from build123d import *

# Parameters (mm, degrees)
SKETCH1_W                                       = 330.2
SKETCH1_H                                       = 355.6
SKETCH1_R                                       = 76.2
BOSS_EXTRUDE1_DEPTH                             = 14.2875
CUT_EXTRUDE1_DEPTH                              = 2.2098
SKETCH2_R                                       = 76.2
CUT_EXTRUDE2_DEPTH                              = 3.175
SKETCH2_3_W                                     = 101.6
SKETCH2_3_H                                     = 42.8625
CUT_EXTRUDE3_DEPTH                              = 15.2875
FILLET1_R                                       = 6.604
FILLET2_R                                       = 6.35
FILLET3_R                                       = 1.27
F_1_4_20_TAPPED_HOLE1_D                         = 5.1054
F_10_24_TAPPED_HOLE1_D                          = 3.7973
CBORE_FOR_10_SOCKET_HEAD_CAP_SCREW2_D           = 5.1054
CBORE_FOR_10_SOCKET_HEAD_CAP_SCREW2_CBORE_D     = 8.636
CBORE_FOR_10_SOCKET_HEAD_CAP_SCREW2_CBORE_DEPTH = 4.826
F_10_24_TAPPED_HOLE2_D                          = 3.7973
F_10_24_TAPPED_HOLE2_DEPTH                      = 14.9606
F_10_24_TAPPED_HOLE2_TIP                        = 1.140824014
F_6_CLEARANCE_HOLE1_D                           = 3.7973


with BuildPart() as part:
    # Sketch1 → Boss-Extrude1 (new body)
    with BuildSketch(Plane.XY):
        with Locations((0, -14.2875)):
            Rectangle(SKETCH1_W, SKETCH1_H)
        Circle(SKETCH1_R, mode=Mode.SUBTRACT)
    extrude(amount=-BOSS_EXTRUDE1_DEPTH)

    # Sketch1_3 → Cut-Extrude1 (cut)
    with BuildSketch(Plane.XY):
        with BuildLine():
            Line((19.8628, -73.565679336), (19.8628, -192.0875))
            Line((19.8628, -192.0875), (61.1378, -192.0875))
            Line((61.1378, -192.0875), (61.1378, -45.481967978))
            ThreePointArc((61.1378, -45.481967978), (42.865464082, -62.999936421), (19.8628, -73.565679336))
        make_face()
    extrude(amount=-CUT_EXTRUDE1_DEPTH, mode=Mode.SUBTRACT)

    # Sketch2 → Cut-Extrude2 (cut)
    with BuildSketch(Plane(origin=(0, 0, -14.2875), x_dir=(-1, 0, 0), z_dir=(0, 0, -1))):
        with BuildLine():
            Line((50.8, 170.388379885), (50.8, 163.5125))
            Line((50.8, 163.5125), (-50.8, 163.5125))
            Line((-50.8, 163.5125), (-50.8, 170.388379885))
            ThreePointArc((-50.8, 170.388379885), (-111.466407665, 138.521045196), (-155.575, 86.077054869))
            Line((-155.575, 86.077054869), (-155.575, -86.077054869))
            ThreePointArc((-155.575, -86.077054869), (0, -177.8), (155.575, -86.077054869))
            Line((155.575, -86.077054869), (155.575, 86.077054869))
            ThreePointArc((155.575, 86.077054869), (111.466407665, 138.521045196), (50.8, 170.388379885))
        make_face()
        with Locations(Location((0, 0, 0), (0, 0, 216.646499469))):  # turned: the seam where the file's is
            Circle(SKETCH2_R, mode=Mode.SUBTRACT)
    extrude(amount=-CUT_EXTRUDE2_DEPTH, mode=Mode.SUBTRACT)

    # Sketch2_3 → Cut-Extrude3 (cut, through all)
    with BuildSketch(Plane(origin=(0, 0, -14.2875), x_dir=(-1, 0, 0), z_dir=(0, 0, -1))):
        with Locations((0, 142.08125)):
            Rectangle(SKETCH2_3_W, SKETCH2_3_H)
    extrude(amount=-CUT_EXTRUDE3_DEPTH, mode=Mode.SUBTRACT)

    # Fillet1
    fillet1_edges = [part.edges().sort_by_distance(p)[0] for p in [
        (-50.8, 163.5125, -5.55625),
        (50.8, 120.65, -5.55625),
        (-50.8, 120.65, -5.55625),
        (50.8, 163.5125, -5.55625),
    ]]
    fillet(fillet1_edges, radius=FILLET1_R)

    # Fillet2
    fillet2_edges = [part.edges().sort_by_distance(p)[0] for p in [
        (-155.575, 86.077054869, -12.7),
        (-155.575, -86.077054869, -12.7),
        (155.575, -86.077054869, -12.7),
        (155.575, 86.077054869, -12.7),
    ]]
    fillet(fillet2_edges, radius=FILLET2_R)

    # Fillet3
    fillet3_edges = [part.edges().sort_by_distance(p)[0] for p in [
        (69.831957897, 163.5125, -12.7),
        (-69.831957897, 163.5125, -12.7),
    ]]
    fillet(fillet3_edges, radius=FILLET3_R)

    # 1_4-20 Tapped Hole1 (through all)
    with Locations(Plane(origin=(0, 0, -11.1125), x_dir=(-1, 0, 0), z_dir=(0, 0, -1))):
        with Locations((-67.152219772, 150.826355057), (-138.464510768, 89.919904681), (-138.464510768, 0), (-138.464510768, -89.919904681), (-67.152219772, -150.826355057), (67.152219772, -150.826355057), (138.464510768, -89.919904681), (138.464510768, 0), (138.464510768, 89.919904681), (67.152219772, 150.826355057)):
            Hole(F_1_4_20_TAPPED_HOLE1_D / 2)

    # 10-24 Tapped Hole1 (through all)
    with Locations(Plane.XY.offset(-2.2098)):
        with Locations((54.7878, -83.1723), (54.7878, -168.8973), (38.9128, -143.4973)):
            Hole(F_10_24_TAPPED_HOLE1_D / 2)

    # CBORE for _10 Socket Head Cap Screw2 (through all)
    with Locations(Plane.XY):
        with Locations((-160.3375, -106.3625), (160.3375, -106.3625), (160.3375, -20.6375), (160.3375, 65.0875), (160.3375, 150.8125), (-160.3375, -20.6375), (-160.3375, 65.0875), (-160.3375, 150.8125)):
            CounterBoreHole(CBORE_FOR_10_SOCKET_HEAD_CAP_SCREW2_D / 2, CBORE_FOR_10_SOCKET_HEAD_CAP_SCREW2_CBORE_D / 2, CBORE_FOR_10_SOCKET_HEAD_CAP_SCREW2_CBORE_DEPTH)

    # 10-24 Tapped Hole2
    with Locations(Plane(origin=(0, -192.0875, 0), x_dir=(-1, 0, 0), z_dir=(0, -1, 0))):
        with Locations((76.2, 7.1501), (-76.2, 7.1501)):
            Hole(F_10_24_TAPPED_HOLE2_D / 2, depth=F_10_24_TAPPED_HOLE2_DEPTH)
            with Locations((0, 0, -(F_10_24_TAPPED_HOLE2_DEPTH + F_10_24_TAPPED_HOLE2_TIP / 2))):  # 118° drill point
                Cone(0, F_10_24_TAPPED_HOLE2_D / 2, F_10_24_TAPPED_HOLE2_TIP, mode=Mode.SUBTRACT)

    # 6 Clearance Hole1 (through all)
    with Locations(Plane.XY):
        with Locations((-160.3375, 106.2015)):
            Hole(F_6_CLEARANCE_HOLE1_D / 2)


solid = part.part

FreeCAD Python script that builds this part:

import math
import FreeCAD as App
import Part
import Sketcher

V = App.Vector
Q = App.Units.Quantity


def edges_at(feature, points):
    """Names of the edges that pass closest to the given points."""
    edges = feature.Shape.Edges
    near = lambda p: min(range(len(edges)), key=lambda i: edges[i].distToShape(Part.Vertex(*p))[0])
    return sorted({f"Edge{near(p) + 1}" for p in points})


def add_polygon(sketch, points):
    """Adds a closed chain of lines whose ends are joined by coincident constraints."""
    first, n = sketch.GeometryCount, len(points)
    for a, b in zip(points, points[1:] + points[:1]):
        sketch.addGeometry(Part.LineSegment(App.Vector(*a, 0), App.Vector(*b, 0)), False)
    for i in range(n):
        sketch.addConstraint(Sketcher.Constraint("Coincident", first + i, 2, first + (i + 1) % n, 1))

doc = App.newDocument("Part")
body = doc.addObject("PartDesign::Body", "Body")

sketch1 = body.newObject("Sketcher::SketchObject", "Sketch")
sketch1.AttachmentSupport = (doc.getObject("XY_Plane"), [""])
sketch1.MapMode = "FlatFace"
add_polygon(sketch1, [(-165.1, 163.5125), (-165.1, -192.0875), (165.1, -192.0875), (165.1, 163.5125)])
sketch1.addGeometry(Part.Circle(V(0, 0, 0), V(0, 0, 1), 76.2), False)
sketch1.addConstraint(Sketcher.Constraint("Vertical", 0))
sketch1.addConstraint(Sketcher.Constraint("Horizontal", 1))
sketch1.addConstraint(Sketcher.Constraint("Vertical", 2))
sketch1.addConstraint(Sketcher.Constraint("Horizontal", 3))
sketch1.addConstraint(Sketcher.Constraint("Coincident", 4, 3, -1, 1))
sketch1.addConstraint(Sketcher.Constraint("Diameter", 4, Q("6 in")))
sketch1.addConstraint(Sketcher.Constraint("DistanceX", 1, 1, 1, 2, Q("13 in")))
sketch1.addConstraint(Sketcher.Constraint("DistanceY", 0, 2, 0, 1, Q("14 in")))
sketch1.addConstraint(Sketcher.Constraint("DistanceX", 0, 2, -1, 1, Q("6.5 in")))
sketch1.addConstraint(Sketcher.Constraint("DistanceY", 0, 2, -1, 1, Q("7.5625 in")))
pad1 = body.newObject("PartDesign::Pad", "Pad")
pad1.Profile = sketch1
pad1.Length = Q("0.5625 in")
pad1.Reversed = True

sketch2 = body.newObject("Sketcher::SketchObject", "Sketch001")
sketch2.AttachmentSupport = (doc.getObject("XY_Plane"), [""])
sketch2.MapMode = "FlatFace"
sketch2.addGeometry(Part.LineSegment(V(19.8628, -73.565679, 0), V(19.8628, -192.0875, 0)), False)
sketch2.addGeometry(Part.LineSegment(V(19.8628, -192.0875, 0), V(61.1378, -192.0875, 0)), False)
sketch2.addGeometry(Part.LineSegment(V(61.1378, -192.0875, 0), V(61.1378, -45.481968, 0)), False)
sketch2.addGeometry(Part.ArcOfCircle(Part.Circle(V(0, 0, 0), V(0, 0, 1), 76.2), math.radians(-74.890377), math.radians(-36.646499)), False)
sketch2.addConstraint(Sketcher.Constraint("Coincident", 0, 2, 1, 1))
sketch2.addConstraint(Sketcher.Constraint("Coincident", 1, 2, 2, 1))
sketch2.addConstraint(Sketcher.Constraint("Coincident", 2, 2, 3, 2))
sketch2.addConstraint(Sketcher.Constraint("Coincident", 3, 1, 0, 1))
sketch2.addConstraint(Sketcher.Constraint("Vertical", 0))
sketch2.addConstraint(Sketcher.Constraint("Horizontal", 1))
sketch2.addConstraint(Sketcher.Constraint("Vertical", 2))
sketch2.addConstraint(Sketcher.Constraint("Coincident", 3, 3, -1, 1))
sketch2.addConstraint(Sketcher.Constraint("Radius", 3, Q("3 in")))
sketch2.addConstraint(Sketcher.Constraint("DistanceX", 1, 1, 1, 2, Q("1.625 in")))
sketch2.addConstraint(Sketcher.Constraint("DistanceX", -1, 1, 0, 2, Q("0.782 in")))
sketch2.addConstraint(Sketcher.Constraint("DistanceY", 0, 2, -1, 1, Q("7.5625 in")))
pocket1 = body.newObject("PartDesign::Pocket", "Pocket")
pocket1.Profile = sketch2
pocket1.Length = Q("0.087 in")

sketch3 = body.newObject("Sketcher::SketchObject", "Sketch002")
sketch3.AttachmentSupport = (doc.getObject("XY_Plane"), [""])
sketch3.MapMode = "FlatFace"
sketch3.AttachmentOffset = App.Placement(V(0, 0, -0.5625 * 25.4), App.Rotation())
sketch3.addGeometry(Part.LineSegment(V(-50.8, 170.38838, 0), V(-50.8, 163.5125, 0)), False)
sketch3.addGeometry(Part.LineSegment(V(-50.8, 163.5125, 0), V(50.8, 163.5125, 0)), False)
sketch3.addGeometry(Part.LineSegment(V(50.8, 163.5125, 0), V(50.8, 170.38838, 0)), False)
sketch3.addGeometry(Part.ArcOfCircle(Part.Circle(V(0, 0, 0), V(0, 0, 1), 177.8), math.radians(28.955024), math.radians(73.39845)), False)
sketch3.addGeometry(Part.LineSegment(V(155.575, 86.077055, 0), V(155.575, -86.077055, 0)), False)
sketch3.addGeometry(Part.ArcOfCircle(Part.Circle(V(0, 0, 0), V(0, 0, 1), 177.8), math.radians(-151.044976), math.radians(-28.955024)), False)
sketch3.addGeometry(Part.LineSegment(V(-155.575, -86.077055, 0), V(-155.575, 86.077055, 0)), False)
sketch3.addGeometry(Part.ArcOfCircle(Part.Circle(V(0, 0, 0), V(0, 0, 1), 177.8), math.radians(106.60155), math.radians(151.044976)), False)
sketch3.addGeometry(Part.Circle(V(0, 0, 0), V(0, 0, 1), 76.2), False)
sketch3.addConstraint(Sketcher.Constraint("Coincident", 0, 2, 1, 1))
sketch3.addConstraint(Sketcher.Constraint("Coincident", 1, 2, 2, 1))
sketch3.addConstraint(Sketcher.Constraint("Coincident", 2, 2, 3, 2))
sketch3.addConstraint(Sketcher.Constraint("Coincident", 3, 1, 4, 1))
sketch3.addConstraint(Sketcher.Constraint("Coincident", 4, 2, 5, 2))
sketch3.addConstraint(Sketcher.Constraint("Coincident", 5, 1, 6, 1))
sketch3.addConstraint(Sketcher.Constraint("Coincident", 6, 2, 7, 2))
sketch3.addConstraint(Sketcher.Constraint("Coincident", 7, 1, 0, 1))
sketch3.addConstraint(Sketcher.Constraint("Vertical", 0))
sketch3.addConstraint(Sketcher.Constraint("Horizontal", 1))
sketch3.addConstraint(Sketcher.Constraint("Vertical", 2))
sketch3.addConstraint(Sketcher.Constraint("Vertical", 4))
sketch3.addConstraint(Sketcher.Constraint("Vertical", 6))
sketch3.addConstraint(Sketcher.Constraint("Coincident", 3, 3, -1, 1))
sketch3.addConstraint(Sketcher.Constraint("Coincident", 5, 3, -1, 1))
sketch3.addConstraint(Sketcher.Constraint("Coincident", 7, 3, -1, 1))
sketch3.addConstraint(Sketcher.Constraint("Coincident", 8, 3, -1, 1))
sketch3.addConstraint(Sketcher.Constraint("Equal", 3, 5))
sketch3.addConstraint(Sketcher.Constraint("Equal", 5, 7))
sketch3.addConstraint(Sketcher.Constraint("Horizontal", 4, 2, 5, 1))
sketch3.addConstraint(Sketcher.Constraint("Horizontal", 2, 2, 7, 1))
sketch3.addConstraint(Sketcher.Constraint("Diameter", 8, Q("6 in")))
sketch3.addConstraint(Sketcher.Constraint("Radius", 3, Q("7 in")))
sketch3.addConstraint(Sketcher.Constraint("DistanceX", 1, 1, 1, 2, Q("4 in")))
sketch3.addConstraint(Sketcher.Constraint("DistanceY", -1, 1, 0, 2, Q("6.4375 in")))
sketch3.addConstraint(Sketcher.Constraint("DistanceX", -1, 1, 3, 1, Q("6.125 in")))
pocket2 = body.newObject("PartDesign::Pocket", "Pocket001")
pocket2.Profile = sketch3
pocket2.Length = Q("0.125 in")
pocket2.Reversed = True

sketch4 = body.newObject("Sketcher::SketchObject", "Sketch003")
sketch4.AttachmentSupport = (doc.getObject("XY_Plane"), [""])
sketch4.MapMode = "FlatFace"
sketch4.AttachmentOffset = App.Placement(V(0, 0, -0.5625 * 25.4), App.Rotation())
add_polygon(sketch4, [(50.8, 163.5125), (50.8, 120.65), (-50.8, 120.65), (-50.8, 163.5125)])
sketch4.addConstraint(Sketcher.Constraint("Vertical", 0))
sketch4.addConstraint(Sketcher.Constraint("Horizontal", 1))
sketch4.addConstraint(Sketcher.Constraint("Vertical", 2))
sketch4.addConstraint(Sketcher.Constraint("Horizontal", 3))
sketch4.addConstraint(Sketcher.Constraint("DistanceX", 1, 2, 1, 1, Q("4 in")))
sketch4.addConstraint(Sketcher.Constraint("DistanceX", -1, 1, 0, 2, Q("2 in")))
sketch4.addConstraint(Sketcher.Constraint("DistanceY", 0, 2, 0, 1, Q("1.6875 in")))
sketch4.addConstraint(Sketcher.Constraint("DistanceY", -1, 1, 0, 2, Q("4.75 in")))
pocket3 = body.newObject("PartDesign::Pocket", "Pocket002")
pocket3.Profile = sketch4
pocket3.Type = "ThroughAll"
pocket3.Reversed = True
doc.recompute()

fillet = body.newObject("PartDesign::Fillet", "Fillet")
fillet.Base = (pocket3, edges_at(pocket3, [
    (-50.8, 163.512, -5.556),
    (50.8, 120.65, -5.556),
    (-50.8, 120.65, -5.556),
    (50.8, 163.512, -5.556),
]))
fillet.Radius = Q("0.26 in")
doc.recompute()

fillet2 = body.newObject("PartDesign::Fillet", "Fillet001")
fillet2.Base = (fillet, edges_at(fillet, [
    (-155.575, 86.077, -12.7),
    (-155.575, -86.077, -12.7),
    (155.575, -86.077, -12.7),
    (155.575, 86.077, -12.7),
]))
fillet2.Radius = Q("0.25 in")
doc.recompute()

fillet3 = body.newObject("PartDesign::Fillet", "Fillet002")
fillet3.Base = (fillet2, edges_at(fillet2, [(69.832, 163.512, -12.7), (-69.832, 163.512, -12.7)]))
fillet3.Radius = Q("0.05 in")

sketch5 = body.newObject("Sketcher::SketchObject", "Sketch004")
sketch5.AttachmentSupport = (doc.getObject("XY_Plane"), [""])
sketch5.MapMode = "FlatFace"
sketch5.AttachmentOffset = App.Placement(V(0, 0, -0.4375 * 25.4), App.Rotation())
sketch5.addGeometry(Part.Circle(V(67.15222, 150.826355, 0), V(0, 0, 1), 2.5527), False)
sketch5.addGeometry(Part.Circle(V(138.464511, 89.919905, 0), V(0, 0, 1), 2.5527), False)
sketch5.addGeometry(Part.Circle(V(138.464511, 0, 0), V(0, 0, 1), 2.5527), False)
sketch5.addGeometry(Part.Circle(V(138.464511, -89.919905, 0), V(0, 0, 1), 2.5527), False)
sketch5.addGeometry(Part.Circle(V(67.15222, -150.826355, 0), V(0, 0, 1), 2.5527), False)
sketch5.addGeometry(Part.Circle(V(-67.15222, -150.826355, 0), V(0, 0, 1), 2.5527), False)
sketch5.addGeometry(Part.Circle(V(-138.464511, -89.919905, 0), V(0, 0, 1), 2.5527), False)
sketch5.addGeometry(Part.Circle(V(-138.464511, 0, 0), V(0, 0, 1), 2.5527), False)
sketch5.addGeometry(Part.Circle(V(-138.464511, 89.919905, 0), V(0, 0, 1), 2.5527), False)
sketch5.addGeometry(Part.Circle(V(-67.15222, 150.826355, 0), V(0, 0, 1), 2.5527), False)
sketch5.addConstraint(Sketcher.Constraint("Equal", 0, 1))
sketch5.addConstraint(Sketcher.Constraint("Equal", 1, 2))
sketch5.addConstraint(Sketcher.Constraint("Equal", 2, 3))
sketch5.addConstraint(Sketcher.Constraint("Equal", 3, 4))
sketch5.addConstraint(Sketcher.Constraint("Equal", 4, 5))
sketch5.addConstraint(Sketcher.Constraint("Equal", 5, 6))
sketch5.addConstraint(Sketcher.Constraint("Equal", 6, 7))
sketch5.addConstraint(Sketcher.Constraint("Equal", 7, 8))
sketch5.addConstraint(Sketcher.Constraint("Equal", 8, 9))
sketch5.addConstraint(Sketcher.Constraint("Symmetric", 0, 3, 5, 3, -1, 1))
sketch5.addConstraint(Sketcher.Constraint("Symmetric", 1, 3, 6, 3, -1, 1))
sketch5.addConstraint(Sketcher.Constraint("Symmetric", 2, 3, 7, 3, -1, 1))
sketch5.addConstraint(Sketcher.Constraint("Symmetric", 3, 3, 8, 3, -1, 1))
sketch5.addConstraint(Sketcher.Constraint("Symmetric", 4, 3, 9, 3, -1, 1))
sketch5.addConstraint(Sketcher.Constraint("Symmetric", 4, 3, 5, 3, -2))
sketch5.addConstraint(Sketcher.Constraint("Symmetric", 3, 3, 6, 3, -2))
sketch5.addConstraint(Sketcher.Constraint("PointOnObject", 2, 3, -1))
sketch5.addConstraint(Sketcher.Constraint("Vertical", 1, 3, 2, 3))
sketch5.addConstraint(Sketcher.Constraint("Diameter", 0, Q("0.201 in")))
sketch5.addConstraint(Sketcher.Constraint("DistanceX", -1, 1, 0, 3, Q("67.15222 mm")))
sketch5.addConstraint(Sketcher.Constraint("DistanceX", -1, 1, 1, 3, Q("138.464511 mm")))
sketch5.addConstraint(Sketcher.Constraint("DistanceY", 1, 3, 0, 3, Q("60.90645 mm")))
sketch5.addConstraint(Sketcher.Constraint("DistanceY", 3, 3, 1, 3, Q("179.839809 mm")))
doc.recompute()
hole = body.newObject("PartDesign::Hole", "Hole")
hole.Profile = sketch5
hole.ThreadType = "None"
hole.Diameter = Q("0.201 in")
hole.DepthType = "ThroughAll"
hole.Reversed = True

sketch6 = body.newObject("Sketcher::SketchObject", "Sketch005")
sketch6.AttachmentSupport = (doc.getObject("XY_Plane"), [""])
sketch6.MapMode = "FlatFace"
sketch6.AttachmentOffset = App.Placement(V(0, 0, -0.087 * 25.4), App.Rotation())
sketch6.addGeometry(Part.Circle(V(54.7878, -83.1723, 0), V(0, 0, 1), 1.89865), False)
sketch6.addGeometry(Part.Circle(V(54.7878, -168.8973, 0), V(0, 0, 1), 1.89865), False)
sketch6.addGeometry(Part.Circle(V(38.9128, -143.4973, 0), V(0, 0, 1), 1.89865), False)
sketch6.addConstraint(Sketcher.Constraint("Equal", 0, 1))
sketch6.addConstraint(Sketcher.Constraint("Equal", 1, 2))
sketch6.addConstraint(Sketcher.Constraint("Vertical", 0, 3, 1, 3))
sketch6.addConstraint(Sketcher.Constraint("DistanceY", 1, 3, 2, 3, Q("1 in")))
sketch6.addConstraint(Sketcher.Constraint("Diameter", 0, Q("0.1495 in")))
sketch6.addConstraint(Sketcher.Constraint("DistanceX", -1, 1, 0, 3, Q("2.157 in")))
sketch6.addConstraint(Sketcher.Constraint("DistanceX", -1, 1, 2, 3, Q("1.532 in")))
sketch6.addConstraint(Sketcher.Constraint("DistanceY", 1, 3, 0, 3, Q("3.375 in")))
sketch6.addConstraint(Sketcher.Constraint("DistanceY", 0, 3, -1, 1, Q("3.2745 in")))
doc.recompute()
hole2 = body.newObject("PartDesign::Hole", "Hole001")
hole2.Profile = sketch6
hole2.ThreadType = "None"
hole2.Diameter = Q("0.1495 in")
hole2.DepthType = "ThroughAll"

sketch7 = body.newObject("Sketcher::SketchObject", "Sketch006")
sketch7.AttachmentSupport = (doc.getObject("XY_Plane"), [""])
sketch7.MapMode = "FlatFace"
sketch7.addGeometry(Part.Circle(V(-160.3375, -106.3625, 0), V(0, 0, 1), 2.5527), False)
sketch7.addGeometry(Part.Circle(V(160.3375, -106.3625, 0), V(0, 0, 1), 2.5527), False)
sketch7.addGeometry(Part.Circle(V(160.3375, -20.6375, 0), V(0, 0, 1), 2.5527), False)
sketch7.addGeometry(Part.Circle(V(160.3375, 65.0875, 0), V(0, 0, 1), 2.5527), False)
sketch7.addGeometry(Part.Circle(V(160.3375, 150.8125, 0), V(0, 0, 1), 2.5527), False)
sketch7.addGeometry(Part.Circle(V(-160.3375, -20.6375, 0), V(0, 0, 1), 2.5527), False)
sketch7.addGeometry(Part.Circle(V(-160.3375, 65.0875, 0), V(0, 0, 1), 2.5527), False)
sketch7.addGeometry(Part.Circle(V(-160.3375, 150.8125, 0), V(0, 0, 1), 2.5527), False)
sketch7.addConstraint(Sketcher.Constraint("Equal", 0, 1))
sketch7.addConstraint(Sketcher.Constraint("Equal", 1, 2))
sketch7.addConstraint(Sketcher.Constraint("Equal", 2, 3))
sketch7.addConstraint(Sketcher.Constraint("Equal", 3, 4))
sketch7.addConstraint(Sketcher.Constraint("Equal", 4, 5))
sketch7.addConstraint(Sketcher.Constraint("Equal", 5, 6))
sketch7.addConstraint(Sketcher.Constraint("Equal", 6, 7))
sketch7.addConstraint(Sketcher.Constraint("Symmetric", 0, 3, 1, 3, -2))
sketch7.addConstraint(Sketcher.Constraint("Symmetric", 2, 3, 5, 3, -2))
sketch7.addConstraint(Sketcher.Constraint("Symmetric", 3, 3, 6, 3, -2))
sketch7.addConstraint(Sketcher.Constraint("Symmetric", 4, 3, 7, 3, -2))
sketch7.addConstraint(Sketcher.Constraint("Vertical", 1, 3, 2, 3))
sketch7.addConstraint(Sketcher.Constraint("Vertical", 2, 3, 3, 3))
sketch7.addConstraint(Sketcher.Constraint("Vertical", 3, 3, 4, 3))
sketch7.addConstraint(Sketcher.Constraint("Diameter", 0, Q("0.201 in")))
sketch7.addConstraint(Sketcher.Constraint("DistanceY", 1, 3, 3, 3, Q("6.75 in")))
sketch7.addConstraint(Sketcher.Constraint("DistanceY", 2, 3, 4, 3, Q("6.75 in")))
sketch7.addConstraint(Sketcher.Constraint("DistanceX", 0, 3, -1, 1, Q("6.3125 in")))
sketch7.addConstraint(Sketcher.Constraint("DistanceY", 0, 3, -1, 1, Q("4.1875 in")))
sketch7.addConstraint(Sketcher.Constraint("DistanceY", 2, 3, -1, 1, Q("0.8125 in")))
doc.recompute()
hole3 = body.newObject("PartDesign::Hole", "Hole002")
hole3.Profile = sketch7
hole3.ThreadType = "None"
hole3.Diameter = Q("0.201 in")
hole3.DepthType = "ThroughAll"
hole3.HoleCutType = "Counterbore"
hole3.HoleCutDiameter = Q("0.34 in")
hole3.HoleCutDepth = Q("0.19 in")

sketch8 = body.newObject("Sketcher::SketchObject", "Sketch007")
sketch8.AttachmentSupport = (doc.getObject("XZ_Plane"), [""])
sketch8.MapMode = "FlatFace"
sketch8.AttachmentOffset = App.Placement(V(0, 0, 7.5625 * 25.4), App.Rotation())
sketch8.addGeometry(Part.Circle(V(-76.2, -7.1501, 0), V(0, 0, 1), 1.89865), False)
sketch8.addGeometry(Part.Circle(V(76.2, -7.1501, 0), V(0, 0, 1), 1.89865), False)
sketch8.addConstraint(Sketcher.Constraint("Equal", 0, 1))
sketch8.addConstraint(Sketcher.Constraint("Symmetric", 0, 3, 1, 3, -2))
sketch8.addConstraint(Sketcher.Constraint("DistanceX", 0, 3, -1, 1, Q("3 in")))
sketch8.addConstraint(Sketcher.Constraint("Diameter", 0, Q("0.1495 in")))
sketch8.addConstraint(Sketcher.Constraint("DistanceY", 0, 3, -1, 1, Q("0.2815 in")))
doc.recompute()
hole4 = body.newObject("PartDesign::Hole", "Hole003")
hole4.Profile = sketch8
hole4.ThreadType = "None"
hole4.Diameter = Q("0.1495 in")
hole4.DepthType = "Dimension"
hole4.Depth = Q("0.589 in")
hole4.DrillPoint = "Angled"
hole4.DrillPointAngle = 118

sketch9 = body.newObject("Sketcher::SketchObject", "Sketch008")
sketch9.AttachmentSupport = (doc.getObject("XY_Plane"), [""])
sketch9.MapMode = "FlatFace"
sketch9.addGeometry(Part.Circle(V(-160.3375, 106.2015, 0), V(0, 0, 1), 1.89865), False)
sketch9.addConstraint(Sketcher.Constraint("Diameter", 0, Q("0.1495 in")))
sketch9.addConstraint(Sketcher.Constraint("DistanceX", 0, 3, -1, 1, Q("6.3125 in")))
sketch9.addConstraint(Sketcher.Constraint("DistanceY", -1, 1, 0, 3, Q("106.2015 mm")))
doc.recompute()
hole5 = body.newObject("PartDesign::Hole", "Hole004")
hole5.Profile = sketch9
hole5.ThreadType = "None"
hole5.Diameter = Q("0.1495 in")
hole5.DepthType = "ThroughAll"

doc.recompute()
